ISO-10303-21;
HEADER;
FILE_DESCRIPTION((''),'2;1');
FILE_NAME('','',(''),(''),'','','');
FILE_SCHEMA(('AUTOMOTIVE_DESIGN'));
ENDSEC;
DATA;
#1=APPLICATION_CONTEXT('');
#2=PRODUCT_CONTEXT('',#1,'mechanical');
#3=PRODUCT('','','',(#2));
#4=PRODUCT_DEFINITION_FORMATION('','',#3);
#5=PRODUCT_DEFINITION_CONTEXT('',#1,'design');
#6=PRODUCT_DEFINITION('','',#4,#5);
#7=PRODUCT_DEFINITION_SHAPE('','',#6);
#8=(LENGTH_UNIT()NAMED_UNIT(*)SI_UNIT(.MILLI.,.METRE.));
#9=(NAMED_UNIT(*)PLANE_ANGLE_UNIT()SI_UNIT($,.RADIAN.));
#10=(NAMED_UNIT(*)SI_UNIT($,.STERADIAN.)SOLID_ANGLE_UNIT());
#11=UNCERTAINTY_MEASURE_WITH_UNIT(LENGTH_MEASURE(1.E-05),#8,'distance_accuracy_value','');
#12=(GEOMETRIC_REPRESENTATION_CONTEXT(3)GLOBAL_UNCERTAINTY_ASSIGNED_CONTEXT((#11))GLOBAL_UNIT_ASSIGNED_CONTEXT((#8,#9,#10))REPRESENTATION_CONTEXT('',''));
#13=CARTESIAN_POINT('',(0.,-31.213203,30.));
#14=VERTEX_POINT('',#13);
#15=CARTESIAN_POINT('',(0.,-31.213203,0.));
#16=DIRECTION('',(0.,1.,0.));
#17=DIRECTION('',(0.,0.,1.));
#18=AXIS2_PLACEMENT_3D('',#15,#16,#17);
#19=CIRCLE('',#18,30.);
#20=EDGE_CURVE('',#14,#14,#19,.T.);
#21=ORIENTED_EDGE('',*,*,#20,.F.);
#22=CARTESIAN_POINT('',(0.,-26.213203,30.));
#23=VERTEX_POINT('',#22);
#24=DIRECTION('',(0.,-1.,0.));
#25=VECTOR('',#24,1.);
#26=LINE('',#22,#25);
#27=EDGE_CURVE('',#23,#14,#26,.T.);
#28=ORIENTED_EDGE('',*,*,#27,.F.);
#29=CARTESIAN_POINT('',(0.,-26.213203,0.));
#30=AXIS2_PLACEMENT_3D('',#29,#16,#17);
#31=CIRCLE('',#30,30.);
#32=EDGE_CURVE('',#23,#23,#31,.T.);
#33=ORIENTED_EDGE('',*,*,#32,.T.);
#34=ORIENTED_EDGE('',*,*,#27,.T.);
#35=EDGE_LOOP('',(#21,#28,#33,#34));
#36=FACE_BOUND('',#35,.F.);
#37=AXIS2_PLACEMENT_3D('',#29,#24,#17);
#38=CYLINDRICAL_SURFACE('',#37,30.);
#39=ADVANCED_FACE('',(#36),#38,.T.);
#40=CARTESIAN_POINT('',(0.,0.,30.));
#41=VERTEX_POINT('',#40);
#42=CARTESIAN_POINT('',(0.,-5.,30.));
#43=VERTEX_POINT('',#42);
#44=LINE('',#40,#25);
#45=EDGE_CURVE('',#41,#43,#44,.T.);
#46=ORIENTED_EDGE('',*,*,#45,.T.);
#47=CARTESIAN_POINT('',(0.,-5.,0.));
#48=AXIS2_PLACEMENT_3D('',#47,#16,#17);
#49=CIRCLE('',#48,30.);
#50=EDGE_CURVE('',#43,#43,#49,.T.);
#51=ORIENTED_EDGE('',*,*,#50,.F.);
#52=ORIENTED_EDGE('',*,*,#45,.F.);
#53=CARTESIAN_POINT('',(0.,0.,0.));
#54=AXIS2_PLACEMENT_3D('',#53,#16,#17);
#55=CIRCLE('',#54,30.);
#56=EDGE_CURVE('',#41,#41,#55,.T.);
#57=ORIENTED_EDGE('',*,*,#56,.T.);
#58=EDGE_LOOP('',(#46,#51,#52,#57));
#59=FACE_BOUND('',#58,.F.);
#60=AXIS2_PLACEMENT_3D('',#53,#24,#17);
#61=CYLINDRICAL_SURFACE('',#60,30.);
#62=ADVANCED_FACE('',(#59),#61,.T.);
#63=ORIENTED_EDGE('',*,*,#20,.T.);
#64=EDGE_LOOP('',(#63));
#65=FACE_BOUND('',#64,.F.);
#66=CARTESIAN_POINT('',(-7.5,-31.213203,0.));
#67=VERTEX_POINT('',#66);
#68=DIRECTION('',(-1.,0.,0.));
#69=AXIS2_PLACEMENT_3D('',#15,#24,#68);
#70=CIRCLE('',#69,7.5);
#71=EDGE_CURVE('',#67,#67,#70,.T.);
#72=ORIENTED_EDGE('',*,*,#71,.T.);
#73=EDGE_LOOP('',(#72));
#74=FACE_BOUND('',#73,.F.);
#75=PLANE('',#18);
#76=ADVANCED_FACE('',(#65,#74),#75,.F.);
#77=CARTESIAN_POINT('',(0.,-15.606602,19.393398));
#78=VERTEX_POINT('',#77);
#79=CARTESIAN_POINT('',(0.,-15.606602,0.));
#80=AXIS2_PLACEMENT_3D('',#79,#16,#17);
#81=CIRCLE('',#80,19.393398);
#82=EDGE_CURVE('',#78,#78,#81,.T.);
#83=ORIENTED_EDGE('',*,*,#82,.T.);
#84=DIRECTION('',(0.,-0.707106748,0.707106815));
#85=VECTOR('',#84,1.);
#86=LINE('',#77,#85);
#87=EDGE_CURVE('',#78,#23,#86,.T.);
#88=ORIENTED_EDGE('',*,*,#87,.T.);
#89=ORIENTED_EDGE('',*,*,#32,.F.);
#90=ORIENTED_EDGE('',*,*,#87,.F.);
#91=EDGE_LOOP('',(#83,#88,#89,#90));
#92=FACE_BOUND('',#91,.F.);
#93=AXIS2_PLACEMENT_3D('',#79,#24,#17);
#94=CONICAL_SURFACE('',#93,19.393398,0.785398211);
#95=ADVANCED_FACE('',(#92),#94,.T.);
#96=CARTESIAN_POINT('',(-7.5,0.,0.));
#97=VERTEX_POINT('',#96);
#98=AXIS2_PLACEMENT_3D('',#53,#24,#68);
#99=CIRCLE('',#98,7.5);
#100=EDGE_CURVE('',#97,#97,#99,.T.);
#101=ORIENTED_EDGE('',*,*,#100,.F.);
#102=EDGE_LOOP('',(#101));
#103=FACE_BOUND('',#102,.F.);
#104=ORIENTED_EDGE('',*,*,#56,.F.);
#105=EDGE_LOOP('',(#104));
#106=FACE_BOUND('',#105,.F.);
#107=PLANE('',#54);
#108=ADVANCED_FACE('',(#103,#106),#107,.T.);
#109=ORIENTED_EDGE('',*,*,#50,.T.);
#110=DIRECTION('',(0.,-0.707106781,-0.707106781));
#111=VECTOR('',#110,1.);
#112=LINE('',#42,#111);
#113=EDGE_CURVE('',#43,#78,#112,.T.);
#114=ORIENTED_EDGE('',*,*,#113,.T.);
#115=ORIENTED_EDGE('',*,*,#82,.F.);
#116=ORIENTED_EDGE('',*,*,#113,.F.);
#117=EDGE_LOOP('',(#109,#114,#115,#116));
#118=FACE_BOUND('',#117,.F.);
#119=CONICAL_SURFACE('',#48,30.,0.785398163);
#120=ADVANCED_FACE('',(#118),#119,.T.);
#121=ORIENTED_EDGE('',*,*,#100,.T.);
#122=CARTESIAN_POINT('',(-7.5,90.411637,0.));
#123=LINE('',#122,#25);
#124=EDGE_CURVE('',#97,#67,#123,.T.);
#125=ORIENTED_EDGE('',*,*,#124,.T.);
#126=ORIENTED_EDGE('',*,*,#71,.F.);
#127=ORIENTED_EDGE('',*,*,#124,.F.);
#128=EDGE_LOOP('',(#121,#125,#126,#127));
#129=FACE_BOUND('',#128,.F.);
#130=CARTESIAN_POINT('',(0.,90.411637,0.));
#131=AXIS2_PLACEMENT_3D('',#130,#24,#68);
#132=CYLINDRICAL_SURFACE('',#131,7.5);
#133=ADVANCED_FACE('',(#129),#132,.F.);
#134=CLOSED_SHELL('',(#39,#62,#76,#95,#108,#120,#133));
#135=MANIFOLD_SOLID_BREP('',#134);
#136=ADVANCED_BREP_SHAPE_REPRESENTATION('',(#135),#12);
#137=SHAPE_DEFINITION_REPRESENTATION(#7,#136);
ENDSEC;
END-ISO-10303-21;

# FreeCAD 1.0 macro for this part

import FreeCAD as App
import Part
import Sketcher
from FreeCAD import Vector


def add_polygon(sketch, points):
    """Adds a closed chain of lines whose ends are joined by coincident constraints."""
    first, n = sketch.GeometryCount, len(points)
    for a, b in zip(points, points[1:] + points[:1]):
        sketch.addGeometry(Part.LineSegment(App.Vector(*a, 0), App.Vector(*b, 0)), False)
    for i in range(n):
        sketch.addConstraint(Sketcher.Constraint("Coincident", first + i, 2, first + (i + 1) % n, 1))

doc = App.newDocument("Part")
body = doc.addObject("PartDesign::Body", "Body")

sketch1 = body.newObject("Sketcher::SketchObject", "Sketch")
sketch1.AttachmentSupport = (doc.getObject("YZ_Plane"), [""])
sketch1.MapMode = "FlatFace"
add_polygon(sketch1, [(-31.213203, 0), (0, 0), (0, 30), (-5, 30), (-15.606602, 19.393398), (-26.213203, 30), (-31.213203, 30)])
sketch1.addConstraint([
    Sketcher.Constraint("Horizontal", 0),
    Sketcher.Constraint("Vertical", 1),
    Sketcher.Constraint("Horizontal", 2),
    Sketcher.Constraint("Horizontal", 5),
    Sketcher.Constraint("Vertical", 6),
    Sketcher.Constraint("Coincident", 0, 2, -1, 1),
    Sketcher.Constraint("Perpendicular", 3, 4),
    Sketcher.Constraint("Horizontal", 2, 2, 4, 2),
    Sketcher.Constraint("Equal", 2, 5),
    Sketcher.Constraint("Equal", 3, 4),
    Sketcher.Constraint("DistanceX", 2, 2, 2, 1, 5.0),
    Sketcher.Constraint("DistanceY", 1, 1, 1, 2, 30.0),
    Sketcher.Constraint("Distance", 3, 15.0),
])
revolution = body.newObject("PartDesign::Revolution", "Revolution")
revolution.Profile = sketch1
revolution.ReferenceAxis = (sketch1, ["H_Axis"])
revolution.Angle = 360

sketch2 = body.newObject("Sketcher::SketchObject", "Sketch001")
sketch2.AttachmentSupport = (doc.getObject("XZ_Plane"), [""])
sketch2.MapMode = "FlatFace"
sketch2.addGeometry(Part.Circle(Vector(0, 0, 0), Vector(0, 0, 1), 7.5), False)
sketch2.addConstraint([
    Sketcher.Constraint("Coincident", 0, 3, -1, 1),
    Sketcher.Constraint("Diameter", 0, 15.0),
])
doc.recompute()
hole = body.newObject("PartDesign::Hole", "Hole")
hole.Profile = sketch2
hole.ThreadType = "None"
hole.Diameter = 15
hole.DepthType = "ThroughAll"
hole.Reversed = True

doc.recompute()
